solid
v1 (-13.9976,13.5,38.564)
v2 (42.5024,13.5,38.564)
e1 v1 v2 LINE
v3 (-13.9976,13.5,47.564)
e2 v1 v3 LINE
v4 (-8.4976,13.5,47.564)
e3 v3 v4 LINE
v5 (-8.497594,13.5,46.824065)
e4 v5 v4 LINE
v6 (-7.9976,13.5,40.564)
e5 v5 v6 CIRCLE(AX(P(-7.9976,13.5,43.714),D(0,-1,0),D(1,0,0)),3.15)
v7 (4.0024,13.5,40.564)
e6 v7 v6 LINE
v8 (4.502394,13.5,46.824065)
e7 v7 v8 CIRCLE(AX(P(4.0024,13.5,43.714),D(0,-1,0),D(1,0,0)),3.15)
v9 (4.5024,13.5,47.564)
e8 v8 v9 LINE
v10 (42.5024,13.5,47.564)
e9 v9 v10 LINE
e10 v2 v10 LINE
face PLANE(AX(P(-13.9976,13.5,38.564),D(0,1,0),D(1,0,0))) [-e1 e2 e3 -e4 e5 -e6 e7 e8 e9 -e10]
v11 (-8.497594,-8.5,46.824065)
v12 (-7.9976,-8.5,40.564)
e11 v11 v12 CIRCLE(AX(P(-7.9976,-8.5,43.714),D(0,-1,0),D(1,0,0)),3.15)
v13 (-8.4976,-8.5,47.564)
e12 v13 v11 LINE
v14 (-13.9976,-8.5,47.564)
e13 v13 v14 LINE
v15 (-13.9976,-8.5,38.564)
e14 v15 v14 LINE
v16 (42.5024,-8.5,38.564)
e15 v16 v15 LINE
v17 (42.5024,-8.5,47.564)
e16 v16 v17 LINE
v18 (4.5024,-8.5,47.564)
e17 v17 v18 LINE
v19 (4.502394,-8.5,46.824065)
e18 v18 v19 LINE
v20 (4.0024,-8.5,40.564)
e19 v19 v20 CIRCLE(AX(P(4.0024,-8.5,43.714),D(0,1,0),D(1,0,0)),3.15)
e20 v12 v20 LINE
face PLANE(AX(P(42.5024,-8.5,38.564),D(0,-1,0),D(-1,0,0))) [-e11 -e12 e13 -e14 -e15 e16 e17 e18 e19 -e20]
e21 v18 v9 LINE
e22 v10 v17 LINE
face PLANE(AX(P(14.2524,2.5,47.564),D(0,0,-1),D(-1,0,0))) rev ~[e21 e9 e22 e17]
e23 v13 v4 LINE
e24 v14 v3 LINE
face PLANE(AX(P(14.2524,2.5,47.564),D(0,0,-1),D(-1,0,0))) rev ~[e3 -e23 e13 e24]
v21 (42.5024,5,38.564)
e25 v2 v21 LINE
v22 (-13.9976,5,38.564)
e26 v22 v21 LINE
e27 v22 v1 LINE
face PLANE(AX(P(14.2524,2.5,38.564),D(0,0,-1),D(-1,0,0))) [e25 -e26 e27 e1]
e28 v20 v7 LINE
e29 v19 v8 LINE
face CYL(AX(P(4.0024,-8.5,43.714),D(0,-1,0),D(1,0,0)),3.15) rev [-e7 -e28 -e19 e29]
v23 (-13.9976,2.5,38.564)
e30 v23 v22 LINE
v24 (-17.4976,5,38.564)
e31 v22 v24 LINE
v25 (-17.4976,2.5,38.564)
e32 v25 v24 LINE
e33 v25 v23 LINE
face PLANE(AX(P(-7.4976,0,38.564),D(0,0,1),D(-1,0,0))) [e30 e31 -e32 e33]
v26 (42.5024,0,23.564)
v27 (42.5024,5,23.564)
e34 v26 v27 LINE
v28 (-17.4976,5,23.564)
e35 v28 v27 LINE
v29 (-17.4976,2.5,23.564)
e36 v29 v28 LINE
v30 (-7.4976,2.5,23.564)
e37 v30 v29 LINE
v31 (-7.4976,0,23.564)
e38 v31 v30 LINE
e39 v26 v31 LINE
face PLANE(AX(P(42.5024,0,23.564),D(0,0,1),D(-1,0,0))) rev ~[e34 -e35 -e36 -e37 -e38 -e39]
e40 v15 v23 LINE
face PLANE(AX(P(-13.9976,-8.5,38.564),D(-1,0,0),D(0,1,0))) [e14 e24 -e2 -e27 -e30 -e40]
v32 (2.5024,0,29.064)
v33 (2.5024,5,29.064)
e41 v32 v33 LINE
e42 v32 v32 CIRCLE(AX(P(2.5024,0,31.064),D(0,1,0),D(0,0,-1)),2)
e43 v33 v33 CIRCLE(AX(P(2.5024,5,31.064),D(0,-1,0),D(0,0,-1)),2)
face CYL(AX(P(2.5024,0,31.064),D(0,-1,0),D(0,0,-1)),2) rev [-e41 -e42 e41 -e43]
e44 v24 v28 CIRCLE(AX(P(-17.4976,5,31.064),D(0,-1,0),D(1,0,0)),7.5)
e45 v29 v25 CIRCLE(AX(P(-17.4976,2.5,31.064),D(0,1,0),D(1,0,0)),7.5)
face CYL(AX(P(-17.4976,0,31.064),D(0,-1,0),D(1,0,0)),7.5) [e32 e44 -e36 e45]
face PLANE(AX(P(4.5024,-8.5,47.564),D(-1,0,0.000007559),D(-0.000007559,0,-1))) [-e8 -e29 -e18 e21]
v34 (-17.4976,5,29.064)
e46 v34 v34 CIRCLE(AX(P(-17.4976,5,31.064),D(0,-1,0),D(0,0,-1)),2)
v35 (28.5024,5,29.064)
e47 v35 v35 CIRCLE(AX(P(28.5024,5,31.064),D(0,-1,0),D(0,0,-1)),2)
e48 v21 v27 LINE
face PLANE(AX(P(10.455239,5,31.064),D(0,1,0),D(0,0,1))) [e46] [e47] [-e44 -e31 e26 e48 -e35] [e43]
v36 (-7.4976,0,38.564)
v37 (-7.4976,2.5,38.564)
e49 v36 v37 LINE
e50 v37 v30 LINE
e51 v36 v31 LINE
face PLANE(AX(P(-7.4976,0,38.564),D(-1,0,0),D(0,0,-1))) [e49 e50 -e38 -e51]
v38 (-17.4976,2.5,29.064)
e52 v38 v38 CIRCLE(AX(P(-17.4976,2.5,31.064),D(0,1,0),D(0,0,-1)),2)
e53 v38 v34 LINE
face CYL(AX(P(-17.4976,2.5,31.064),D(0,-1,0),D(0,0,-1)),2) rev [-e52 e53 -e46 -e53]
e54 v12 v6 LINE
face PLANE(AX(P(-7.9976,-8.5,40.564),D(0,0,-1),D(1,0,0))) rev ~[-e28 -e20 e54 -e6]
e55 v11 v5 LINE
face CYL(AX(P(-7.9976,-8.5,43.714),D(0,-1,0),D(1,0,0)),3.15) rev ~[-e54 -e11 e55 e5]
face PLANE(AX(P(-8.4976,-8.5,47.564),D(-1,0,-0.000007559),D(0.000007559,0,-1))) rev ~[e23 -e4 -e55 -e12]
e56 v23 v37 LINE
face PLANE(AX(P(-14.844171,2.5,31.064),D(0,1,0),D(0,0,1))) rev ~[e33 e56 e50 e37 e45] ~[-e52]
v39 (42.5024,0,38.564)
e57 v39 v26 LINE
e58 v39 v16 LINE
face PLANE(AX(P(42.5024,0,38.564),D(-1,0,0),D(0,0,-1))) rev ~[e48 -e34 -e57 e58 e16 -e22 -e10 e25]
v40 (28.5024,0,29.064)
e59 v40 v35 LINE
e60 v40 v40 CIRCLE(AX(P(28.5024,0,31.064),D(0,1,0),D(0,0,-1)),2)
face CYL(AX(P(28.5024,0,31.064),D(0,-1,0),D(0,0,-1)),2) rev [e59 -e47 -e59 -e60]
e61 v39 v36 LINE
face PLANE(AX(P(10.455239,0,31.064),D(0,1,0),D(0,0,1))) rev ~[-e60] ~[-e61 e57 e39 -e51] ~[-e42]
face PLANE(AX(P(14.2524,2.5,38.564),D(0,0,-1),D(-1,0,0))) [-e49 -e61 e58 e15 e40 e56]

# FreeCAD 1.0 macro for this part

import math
import FreeCAD as App
import Part
import Sketcher
from FreeCAD import Vector


def add_polygon(sketch, points):
    """Adds a closed chain of lines whose ends are joined by coincident constraints."""
    first, n = sketch.GeometryCount, len(points)
    for a, b in zip(points, points[1:] + points[:1]):
        sketch.addGeometry(Part.LineSegment(App.Vector(*a, 0), App.Vector(*b, 0)), False)
    for i in range(n):
        sketch.addConstraint(Sketcher.Constraint("Coincident", first + i, 2, first + (i + 1) % n, 1))

doc = App.newDocument("Part")
body = doc.addObject("PartDesign::Body", "Body")

# Sketch on XZ plane
sketch1 = body.newObject("Sketcher::SketchObject", "Sketch")
sketch1.AttachmentSupport = (doc.getObject("XZ_Plane"), [""])
sketch1.MapMode = "FlatFace"
sketch1.addGeometry([
    Part.LineSegment(Vector(42.5024, 38.564, 0), Vector(-17.4976, 38.564, 0)),
    Part.ArcOfCircle(Part.Circle(Vector(-17.4976, 31.064, 0), Vector(0, 0, 1), 7.5), math.radians(90), math.radians(270)),
    Part.LineSegment(Vector(-17.4976, 23.564, 0), Vector(42.5024, 23.564, 0)),
    Part.LineSegment(Vector(42.5024, 23.564, 0), Vector(42.5024, 38.564, 0)),
], False)
sketch1.addConstraint([
    Sketcher.Constraint("Tangent", 0, 2, 1, 1),
    Sketcher.Constraint("Tangent", 1, 2, 2, 1),
    Sketcher.Constraint("Coincident", 2, 2, 3, 1),
    Sketcher.Constraint("Coincident", 3, 2, 0, 1),
    Sketcher.Constraint("Horizontal", 0),
    Sketcher.Constraint("Horizontal", 2),
    Sketcher.Constraint("Vertical", 3),
    Sketcher.Constraint("Radius", 1, 7.5),
    Sketcher.Constraint("DistanceX", 0, 2, 0, 1, 60.0),
    Sketcher.Constraint("DistanceX", -1, 1, 2, 2, 42.5024),
    Sketcher.Constraint("DistanceY", -1, 1, 1, 3, 31.064),
])
pad1 = body.newObject("PartDesign::Pad", "Pad")
pad1.Profile = sketch1
pad1.Length = 5
pad1.Reversed = True

# Sketch on XY plane
sketch2 = body.newObject("Sketcher::SketchObject", "Sketch001")
sketch2.AttachmentSupport = (doc.getObject("XY_Plane"), [""])
sketch2.MapMode = "FlatFace"
sketch2.AttachmentOffset = App.Placement(Vector(0, 0, 38.564), App.Rotation())
add_polygon(sketch2, [(42.5024, 13.5), (-13.9976, 13.5), (-13.9976, -8.5), (42.5024, -8.5)])  # lines 0-3
sketch2.addConstraint([
    Sketcher.Constraint("Horizontal", 0),
    Sketcher.Constraint("Vertical", 1),
    Sketcher.Constraint("Horizontal", 2),
    Sketcher.Constraint("Vertical", 3),
    Sketcher.Constraint("DistanceY", 1, 2, 1, 1, 22.0),
    Sketcher.Constraint("DistanceX", 0, 2, 0, 1, 56.5),
    Sketcher.Constraint("DistanceY", -1, 1, 0, 2, 13.5),
    Sketcher.Constraint("DistanceX", 0, 2, -1, 1, 13.9976),
])
pad2 = body.newObject("PartDesign::Pad", "Pad001")
pad2.Profile = sketch2
pad2.Length = 9

# Sketch on XZ plane
sketch3 = body.newObject("Sketcher::SketchObject", "Sketch002")
sketch3.AttachmentSupport = (doc.getObject("XZ_Plane"), [""])
sketch3.MapMode = "FlatFace"
sketch3.addGeometry(Part.Circle(Vector(2.5024, 31.064, 0), Vector(0, 0, 1), 2), False)
sketch3.addConstraint([
    Sketcher.Constraint("Diameter", 0, 4.0),
    Sketcher.Constraint("DistanceY", -1, 1, 0, 3, 31.064),
    Sketcher.Constraint("DistanceX", -1, 1, 0, 3, 2.5024),
])
doc.recompute()
hole = body.newObject("PartDesign::Hole", "Hole")
hole.Profile = sketch3
hole.ThreadType = "None"
hole.Diameter = 4
hole.DepthType = "ThroughAll"

# Sketch on XZ plane
sketch4 = body.newObject("Sketcher::SketchObject", "Sketch003")
sketch4.AttachmentSupport = (doc.getObject("XZ_Plane"), [""])
sketch4.MapMode = "FlatFace"
sketch4.addGeometry(Part.Circle(Vector(28.5024, 31.064, 0), Vector(0, 0, 1), 2), False)
sketch4.addConstraint([
    Sketcher.Constraint("Diameter", 0, 4.0),
    Sketcher.Constraint("DistanceY", -1, 1, 0, 3, 31.064),
    Sketcher.Constraint("DistanceX", -1, 1, 0, 3, 28.5024),
])
doc.recompute()
hole2 = body.newObject("PartDesign::Hole", "Hole001")
hole2.Profile = sketch4
hole2.ThreadType = "None"
hole2.Diameter = 4
hole2.DepthType = "ThroughAll"

# Sketch on XZ plane
sketch5 = body.newObject("Sketcher::SketchObject", "Sketch004")
sketch5.AttachmentSupport = (doc.getObject("XZ_Plane"), [""])
sketch5.MapMode = "FlatFace"
sketch5.addGeometry([
    Part.LineSegment(Vector(-7.4976, 38.564, 0), Vector(-17.4976, 38.564, 0)),
    Part.ArcOfCircle(Part.Circle(Vector(-17.4976, 31.064, 0), Vector(0, 0, 1), 7.5), math.radians(90), math.radians(270)),
    Part.LineSegment(Vector(-17.4976, 23.564, 0), Vector(-7.4976, 23.564, 0)),
    Part.LineSegment(Vector(-7.4976, 23.564, 0), Vector(-7.4976, 38.564, 0)),
], False)
sketch5.addConstraint([
    Sketcher.Constraint("Tangent", 0, 2, 1, 1),
    Sketcher.Constraint("Tangent", 1, 2, 2, 1),
    Sketcher.Constraint("Coincident", 2, 2, 3, 1),
    Sketcher.Constraint("Coincident", 3, 2, 0, 1),
    Sketcher.Constraint("Horizontal", 0),
    Sketcher.Constraint("Horizontal", 2),
    Sketcher.Constraint("Vertical", 3),
    Sketcher.Constraint("Radius", 1, 7.5),
    Sketcher.Constraint("DistanceX", 0, 2, 0, 1, 10.0),
    Sketcher.Constraint("DistanceY", -1, 1, 1, 3, 31.064),
    Sketcher.Constraint("DistanceX", 1, 3, -1, 1, 17.4976),
])
pocket1 = body.newObject("PartDesign::Pocket", "Pocket")
pocket1.Profile = sketch5
pocket1.Length = 2.5

# Sketch on XZ plane
sketch6 = body.newObject("Sketcher::SketchObject", "Sketch005")
sketch6.AttachmentSupport = (doc.getObject("XZ_Plane"), [""])
sketch6.MapMode = "FlatFace"
sketch6.AttachmentOffset = App.Placement(Vector(0, 0, -2.5), App.Rotation())
sketch6.addGeometry(Part.Circle(Vector(-17.4976, 31.064, 0), Vector(0, 0, 1), 2), False)
sketch6.addConstraint([
    Sketcher.Constraint("Diameter", 0, 4.0),
    Sketcher.Constraint("DistanceY", -1, 1, 0, 3, 31.064),
    Sketcher.Constraint("DistanceX", 0, 3, -1, 1, 17.4976),
])
doc.recompute()
hole3 = body.newObject("PartDesign::Hole", "Hole002")
hole3.Profile = sketch6
hole3.ThreadType = "None"
hole3.Diameter = 4
hole3.DepthType = "ThroughAll"

# Sketch on XZ plane
sketch7 = body.newObject("Sketcher::SketchObject", "Sketch006")
sketch7.AttachmentSupport = (doc.getObject("XZ_Plane"), [""])
sketch7.MapMode = "FlatFace"
sketch7.AttachmentOffset = App.Placement(Vector(0, 0, 8.5), App.Rotation())
sketch7.addGeometry([
    Part.LineSegment(Vector(4.5024, 47.564, 0), Vector(-8.4976, 47.564, 0)),  # 0
    Part.LineSegment(Vector(-8.4976, 47.564, 0), Vector(-8.4976, 46.8241, 0)),  # 1
    Part.ArcOfCircle(Part.Circle(Vector(-7.9976, 43.714, 0), Vector(0, 0, 1), 3.150035), math.radians(99.133095), math.radians(270)),  # 2
    Part.LineSegment(Vector(-7.9976, 40.564, 0), Vector(4.0024, 40.564, 0)),  # 3
    Part.ArcOfCircle(Part.Circle(Vector(4.0024, 43.714, 0), Vector(0, 0, 1), 3.150035), math.radians(-90), math.radians(80.866905)),  # 4
    Part.LineSegment(Vector(4.5024, 46.8241, 0), Vector(4.5024, 47.564, 0)),  # 5
], False)
sketch7.addConstraint([
    Sketcher.Constraint("Coincident", 0, 2, 1, 1),
    Sketcher.Constraint("Coincident", 1, 2, 2, 1),
    Sketcher.Constraint("Tangent", 2, 2, 3, 1),
    Sketcher.Constraint("Tangent", 3, 2, 4, 1),
    Sketcher.Constraint("Coincident", 4, 2, 5, 1),
    Sketcher.Constraint("Coincident", 5, 2, 0, 1),
    Sketcher.Constraint("Horizontal", 0),
    Sketcher.Constraint("Vertical", 1),
    Sketcher.Constraint("Horizontal", 3),
    Sketcher.Constraint("Vertical", 5),
    Sketcher.Constraint("Equal", 2, 4),
    Sketcher.Constraint("Horizontal", 1, 2, 4, 2),
    Sketcher.Constraint("DistanceX", 0, 2, 0, 1, 13.0),
    Sketcher.Constraint("DistanceX", 3, 1, 3, 2, 12.0),
    Sketcher.Constraint("Radius", 2, 3.15),
    Sketcher.Constraint("DistanceY", 2, 2, 0, 2, 7.0),
    Sketcher.Constraint("DistanceY", -1, 1, 2, 3, 43.714),
    Sketcher.Constraint("DistanceX", 2, 3, -1, 1, 7.9976),
])
pocket2 = body.newObject("PartDesign::Pocket", "Pocket001")
pocket2.Profile = sketch7
pocket2.Type = "ThroughAll"

doc.recompute()
